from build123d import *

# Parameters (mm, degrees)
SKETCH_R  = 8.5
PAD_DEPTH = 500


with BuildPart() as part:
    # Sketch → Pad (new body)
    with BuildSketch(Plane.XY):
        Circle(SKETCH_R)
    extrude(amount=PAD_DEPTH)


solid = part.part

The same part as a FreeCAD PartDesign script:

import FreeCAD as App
import Part
import Sketcher

V = App.Vector

doc = App.newDocument("Part")
body = doc.addObject("PartDesign::Body", "Body")

# Sketch on XY plane
sketch1 = body.newObject("Sketcher::SketchObject", "Sketch")
sketch1.AttachmentSupport = (doc.getObject("XY_Plane"), [""])
sketch1.MapMode = "FlatFace"
sketch1.addGeometry(Part.Circle(V(0, 0, 0), V(0, 0, 1), 8), False)
sketch1.addConstraint([
    Sketcher.Constraint("Coincident", 0, 3, -1, 1),
    Sketcher.Constraint("Diameter", 0, 17.0),
])
pad1 = body.newObject("PartDesign::Pad", "Pad")
pad1.Profile = sketch1
pad1.Length = 500

doc.recompute()
